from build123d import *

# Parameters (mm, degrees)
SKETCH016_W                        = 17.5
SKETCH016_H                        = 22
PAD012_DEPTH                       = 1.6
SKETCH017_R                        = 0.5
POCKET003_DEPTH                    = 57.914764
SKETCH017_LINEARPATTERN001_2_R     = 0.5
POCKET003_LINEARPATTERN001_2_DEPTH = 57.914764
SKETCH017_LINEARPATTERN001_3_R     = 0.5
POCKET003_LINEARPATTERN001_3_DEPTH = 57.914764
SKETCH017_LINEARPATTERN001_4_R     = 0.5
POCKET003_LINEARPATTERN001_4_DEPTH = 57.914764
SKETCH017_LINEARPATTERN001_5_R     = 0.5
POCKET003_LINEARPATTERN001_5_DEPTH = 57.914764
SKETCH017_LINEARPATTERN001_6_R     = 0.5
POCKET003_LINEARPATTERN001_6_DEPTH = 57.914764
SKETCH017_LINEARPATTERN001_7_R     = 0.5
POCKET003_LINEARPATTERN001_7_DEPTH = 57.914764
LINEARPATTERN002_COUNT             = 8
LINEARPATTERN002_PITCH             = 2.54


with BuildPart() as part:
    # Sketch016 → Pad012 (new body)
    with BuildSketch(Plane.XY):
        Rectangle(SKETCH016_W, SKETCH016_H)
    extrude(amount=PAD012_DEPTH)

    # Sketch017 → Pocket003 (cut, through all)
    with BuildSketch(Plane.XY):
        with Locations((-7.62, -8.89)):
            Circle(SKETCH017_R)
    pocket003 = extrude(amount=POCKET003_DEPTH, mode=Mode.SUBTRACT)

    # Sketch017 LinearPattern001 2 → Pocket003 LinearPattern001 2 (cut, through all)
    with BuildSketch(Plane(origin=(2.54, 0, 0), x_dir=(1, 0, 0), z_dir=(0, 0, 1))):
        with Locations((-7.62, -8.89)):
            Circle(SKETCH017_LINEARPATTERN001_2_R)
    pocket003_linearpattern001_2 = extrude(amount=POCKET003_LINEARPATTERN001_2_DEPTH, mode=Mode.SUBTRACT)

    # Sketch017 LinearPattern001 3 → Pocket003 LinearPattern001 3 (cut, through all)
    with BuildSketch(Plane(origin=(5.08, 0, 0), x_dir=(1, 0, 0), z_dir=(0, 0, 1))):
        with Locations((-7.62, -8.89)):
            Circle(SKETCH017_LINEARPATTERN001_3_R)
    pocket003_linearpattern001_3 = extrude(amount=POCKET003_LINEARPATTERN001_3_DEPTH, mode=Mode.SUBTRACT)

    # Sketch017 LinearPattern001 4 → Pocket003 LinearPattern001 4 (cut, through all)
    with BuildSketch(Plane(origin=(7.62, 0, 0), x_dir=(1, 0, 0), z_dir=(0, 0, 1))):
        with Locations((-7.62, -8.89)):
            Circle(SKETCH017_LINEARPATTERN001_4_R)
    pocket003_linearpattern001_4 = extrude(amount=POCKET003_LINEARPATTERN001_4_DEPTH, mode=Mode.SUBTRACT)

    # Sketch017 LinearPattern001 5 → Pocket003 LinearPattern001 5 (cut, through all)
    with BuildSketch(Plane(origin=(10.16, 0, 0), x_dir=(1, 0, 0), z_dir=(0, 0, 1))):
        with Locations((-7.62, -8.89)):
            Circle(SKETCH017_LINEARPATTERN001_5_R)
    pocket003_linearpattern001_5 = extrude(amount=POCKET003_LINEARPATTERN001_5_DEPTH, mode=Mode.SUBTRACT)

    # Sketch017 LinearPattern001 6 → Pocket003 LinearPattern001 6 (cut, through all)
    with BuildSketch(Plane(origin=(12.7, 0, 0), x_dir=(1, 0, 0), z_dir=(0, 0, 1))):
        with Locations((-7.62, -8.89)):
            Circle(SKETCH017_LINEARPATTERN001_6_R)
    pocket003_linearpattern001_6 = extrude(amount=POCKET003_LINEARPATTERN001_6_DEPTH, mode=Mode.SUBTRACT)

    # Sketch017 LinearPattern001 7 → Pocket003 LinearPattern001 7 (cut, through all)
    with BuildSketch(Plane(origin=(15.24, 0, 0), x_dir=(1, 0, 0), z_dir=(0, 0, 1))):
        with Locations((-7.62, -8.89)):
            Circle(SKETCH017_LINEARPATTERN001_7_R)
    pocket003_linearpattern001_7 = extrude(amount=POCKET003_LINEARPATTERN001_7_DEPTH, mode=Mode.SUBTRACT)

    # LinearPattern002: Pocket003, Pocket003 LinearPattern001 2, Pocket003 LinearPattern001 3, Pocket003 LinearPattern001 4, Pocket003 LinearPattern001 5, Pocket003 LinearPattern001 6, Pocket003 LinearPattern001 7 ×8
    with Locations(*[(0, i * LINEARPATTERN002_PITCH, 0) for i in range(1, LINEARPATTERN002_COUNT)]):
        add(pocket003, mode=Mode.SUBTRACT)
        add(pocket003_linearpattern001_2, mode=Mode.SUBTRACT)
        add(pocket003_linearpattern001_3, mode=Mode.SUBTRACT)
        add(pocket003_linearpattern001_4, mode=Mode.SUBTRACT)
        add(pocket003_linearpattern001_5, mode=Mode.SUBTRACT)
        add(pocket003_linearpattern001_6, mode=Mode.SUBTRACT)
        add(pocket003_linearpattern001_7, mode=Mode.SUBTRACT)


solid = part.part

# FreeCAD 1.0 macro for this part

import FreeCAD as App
import Part
import Sketcher
from FreeCAD import Vector


def add_polygon(sketch, points):
    """Adds a closed chain of lines whose ends are joined by coincident constraints."""
    first, n = sketch.GeometryCount, len(points)
    for a, b in zip(points, points[1:] + points[:1]):
        sketch.addGeometry(Part.LineSegment(App.Vector(*a, 0), App.Vector(*b, 0)), False)
    for i in range(n):
        sketch.addConstraint(Sketcher.Constraint("Coincident", first + i, 2, first + (i + 1) % n, 1))

doc = App.newDocument("Part")
body = doc.addObject("PartDesign::Body", "Body")

# Sketch on XY plane
sketch1 = body.newObject("Sketcher::SketchObject", "Sketch")
sketch1.AttachmentSupport = (doc.getObject("XY_Plane"), [""])
sketch1.MapMode = "FlatFace"
add_polygon(sketch1, [(-9, 11), (-9, -11), (9, -11), (9, 11)])  # lines 0-3
sketch1.addConstraint(Sketcher.Constraint("Vertical", 0))
sketch1.addConstraint(Sketcher.Constraint("Horizontal", 1))
sketch1.addConstraint(Sketcher.Constraint("Vertical", 2))
sketch1.addConstraint(Sketcher.Constraint("Horizontal", 3))
sketch1.addConstraint(Sketcher.Constraint("Symmetric", 0, 2, 2, 2, -1, 1))
sketch1.addConstraint(Sketcher.Constraint("DistanceY", 0, 2, 0, 1, 22.0))
sketch1.addConstraint(Sketcher.Constraint("DistanceX", 1, 1, 1, 2, 17.5))
pad1 = body.newObject("PartDesign::Pad", "Pad")
pad1.Profile = sketch1
pad1.Length = 1.6

# Sketch on XY plane
sketch2 = body.newObject("Sketcher::SketchObject", "Sketch001")
sketch2.AttachmentSupport = (doc.getObject("XY_Plane"), [""])
sketch2.MapMode = "FlatFace"
sketch2.addGeometry(Part.Circle(Vector(-7.6, -8.9, 0), Vector(0, 0, 1), 0.5), False)
sketch2.addConstraint(Sketcher.Constraint("Diameter", 0, 1.0))
sketch2.addConstraint(Sketcher.Constraint("DistanceX", 0, 3, -1, 1, 7.62))
sketch2.addConstraint(Sketcher.Constraint("DistanceY", 0, 3, -1, 1, 8.89))
pocket1 = body.newObject("PartDesign::Pocket", "Pocket")
pocket1.Profile = sketch2
pocket1.Type = "ThroughAll"
pocket1.Reversed = True

# Sketch on XY plane
sketch3 = body.newObject("Sketcher::SketchObject", "Sketch002")
sketch3.AttachmentSupport = (doc.getObject("XY_Plane"), [""])
sketch3.MapMode = "FlatFace"
sketch3.addGeometry(Part.Circle(Vector(-5.1, -8.9, 0), Vector(0, 0, 1), 0.5), False)
sketch3.addConstraint(Sketcher.Constraint("Diameter", 0, 1.0))
sketch3.addConstraint(Sketcher.Constraint("DistanceX", 0, 3, -1, 1, 5.08))
sketch3.addConstraint(Sketcher.Constraint("DistanceY", 0, 3, -1, 1, 8.89))
pocket2 = body.newObject("PartDesign::Pocket", "Pocket001")
pocket2.Profile = sketch3
pocket2.Type = "ThroughAll"
pocket2.Reversed = True

# Sketch on XY plane
sketch4 = body.newObject("Sketcher::SketchObject", "Sketch003")
sketch4.AttachmentSupport = (doc.getObject("XY_Plane"), [""])
sketch4.MapMode = "FlatFace"
sketch4.addGeometry(Part.Circle(Vector(-2.5, -8.9, 0), Vector(0, 0, 1), 0.5), False)
sketch4.addConstraint(Sketcher.Constraint("Diameter", 0, 1.0))
sketch4.addConstraint(Sketcher.Constraint("DistanceX", 0, 3, -1, 1, 2.54))
sketch4.addConstraint(Sketcher.Constraint("DistanceY", 0, 3, -1, 1, 8.89))
pocket3 = body.newObject("PartDesign::Pocket", "Pocket002")
pocket3.Profile = sketch4
pocket3.Type = "ThroughAll"
pocket3.Reversed = True

# Sketch on XY plane
sketch5 = body.newObject("Sketcher::SketchObject", "Sketch004")
sketch5.AttachmentSupport = (doc.getObject("XY_Plane"), [""])
sketch5.MapMode = "FlatFace"
sketch5.addGeometry(Part.Circle(Vector(0, -8.9, 0), Vector(0, 0, 1), 0.5), False)
sketch5.addConstraint(Sketcher.Constraint("PointOnObject", 0, 3, -2))
sketch5.addConstraint(Sketcher.Constraint("Diameter", 0, 1.0))
sketch5.addConstraint(Sketcher.Constraint("DistanceY", 0, 3, -1, 1, 8.89))
pocket4 = body.newObject("PartDesign::Pocket", "Pocket003")
pocket4.Profile = sketch5
pocket4.Type = "ThroughAll"
pocket4.Reversed = True

# Sketch on XY plane
sketch6 = body.newObject("Sketcher::SketchObject", "Sketch005")
sketch6.AttachmentSupport = (doc.getObject("XY_Plane"), [""])
sketch6.MapMode = "FlatFace"
sketch6.addGeometry(Part.Circle(Vector(2.5, -8.9, 0), Vector(0, 0, 1), 0.5), False)
sketch6.addConstraint(Sketcher.Constraint("Diameter", 0, 1.0))
sketch6.addConstraint(Sketcher.Constraint("DistanceX", -1, 1, 0, 3, 2.54))
sketch6.addConstraint(Sketcher.Constraint("DistanceY", 0, 3, -1, 1, 8.89))
pocket5 = body.newObject("PartDesign::Pocket", "Pocket004")
pocket5.Profile = sketch6
pocket5.Type = "ThroughAll"
pocket5.Reversed = True

# Sketch on XY plane
sketch7 = body.newObject("Sketcher::SketchObject", "Sketch006")
sketch7.AttachmentSupport = (doc.getObject("XY_Plane"), [""])
sketch7.MapMode = "FlatFace"
sketch7.addGeometry(Part.Circle(Vector(5.1, -8.9, 0), Vector(0, 0, 1), 0.5), False)
sketch7.addConstraint(Sketcher.Constraint("Diameter", 0, 1.0))
sketch7.addConstraint(Sketcher.Constraint("DistanceX", -1, 1, 0, 3, 5.08))
sketch7.addConstraint(Sketcher.Constraint("DistanceY", 0, 3, -1, 1, 8.89))
pocket6 = body.newObject("PartDesign::Pocket", "Pocket005")
pocket6.Profile = sketch7
pocket6.Type = "ThroughAll"
pocket6.Reversed = True

# Sketch on XY plane
sketch8 = body.newObject("Sketcher::SketchObject", "Sketch007")
sketch8.AttachmentSupport = (doc.getObject("XY_Plane"), [""])
sketch8.MapMode = "FlatFace"
sketch8.addGeometry(Part.Circle(Vector(7.6, -8.9, 0), Vector(0, 0, 1), 0.5), False)
sketch8.addConstraint(Sketcher.Constraint("Diameter", 0, 1.0))
sketch8.addConstraint(Sketcher.Constraint("DistanceX", -1, 1, 0, 3, 7.62))
sketch8.addConstraint(Sketcher.Constraint("DistanceY", 0, 3, -1, 1, 8.89))
pocket7 = body.newObject("PartDesign::Pocket", "Pocket006")
pocket7.Profile = sketch8
pocket7.Type = "ThroughAll"
pocket7.Reversed = True
doc.recompute()

linearpattern = body.newObject("PartDesign::LinearPattern", "LinearPattern")
linearpattern.Originals = [pocket1, pocket2, pocket3, pocket4, pocket5, pocket6, pocket7]
linearpattern.Direction = (doc.getObject("Y_Axis"), [""])
linearpattern.Mode = "offset"
linearpattern.Offset = 2.54
linearpattern.Occurrences = 8
body.Tip = linearpattern

doc.recompute()
